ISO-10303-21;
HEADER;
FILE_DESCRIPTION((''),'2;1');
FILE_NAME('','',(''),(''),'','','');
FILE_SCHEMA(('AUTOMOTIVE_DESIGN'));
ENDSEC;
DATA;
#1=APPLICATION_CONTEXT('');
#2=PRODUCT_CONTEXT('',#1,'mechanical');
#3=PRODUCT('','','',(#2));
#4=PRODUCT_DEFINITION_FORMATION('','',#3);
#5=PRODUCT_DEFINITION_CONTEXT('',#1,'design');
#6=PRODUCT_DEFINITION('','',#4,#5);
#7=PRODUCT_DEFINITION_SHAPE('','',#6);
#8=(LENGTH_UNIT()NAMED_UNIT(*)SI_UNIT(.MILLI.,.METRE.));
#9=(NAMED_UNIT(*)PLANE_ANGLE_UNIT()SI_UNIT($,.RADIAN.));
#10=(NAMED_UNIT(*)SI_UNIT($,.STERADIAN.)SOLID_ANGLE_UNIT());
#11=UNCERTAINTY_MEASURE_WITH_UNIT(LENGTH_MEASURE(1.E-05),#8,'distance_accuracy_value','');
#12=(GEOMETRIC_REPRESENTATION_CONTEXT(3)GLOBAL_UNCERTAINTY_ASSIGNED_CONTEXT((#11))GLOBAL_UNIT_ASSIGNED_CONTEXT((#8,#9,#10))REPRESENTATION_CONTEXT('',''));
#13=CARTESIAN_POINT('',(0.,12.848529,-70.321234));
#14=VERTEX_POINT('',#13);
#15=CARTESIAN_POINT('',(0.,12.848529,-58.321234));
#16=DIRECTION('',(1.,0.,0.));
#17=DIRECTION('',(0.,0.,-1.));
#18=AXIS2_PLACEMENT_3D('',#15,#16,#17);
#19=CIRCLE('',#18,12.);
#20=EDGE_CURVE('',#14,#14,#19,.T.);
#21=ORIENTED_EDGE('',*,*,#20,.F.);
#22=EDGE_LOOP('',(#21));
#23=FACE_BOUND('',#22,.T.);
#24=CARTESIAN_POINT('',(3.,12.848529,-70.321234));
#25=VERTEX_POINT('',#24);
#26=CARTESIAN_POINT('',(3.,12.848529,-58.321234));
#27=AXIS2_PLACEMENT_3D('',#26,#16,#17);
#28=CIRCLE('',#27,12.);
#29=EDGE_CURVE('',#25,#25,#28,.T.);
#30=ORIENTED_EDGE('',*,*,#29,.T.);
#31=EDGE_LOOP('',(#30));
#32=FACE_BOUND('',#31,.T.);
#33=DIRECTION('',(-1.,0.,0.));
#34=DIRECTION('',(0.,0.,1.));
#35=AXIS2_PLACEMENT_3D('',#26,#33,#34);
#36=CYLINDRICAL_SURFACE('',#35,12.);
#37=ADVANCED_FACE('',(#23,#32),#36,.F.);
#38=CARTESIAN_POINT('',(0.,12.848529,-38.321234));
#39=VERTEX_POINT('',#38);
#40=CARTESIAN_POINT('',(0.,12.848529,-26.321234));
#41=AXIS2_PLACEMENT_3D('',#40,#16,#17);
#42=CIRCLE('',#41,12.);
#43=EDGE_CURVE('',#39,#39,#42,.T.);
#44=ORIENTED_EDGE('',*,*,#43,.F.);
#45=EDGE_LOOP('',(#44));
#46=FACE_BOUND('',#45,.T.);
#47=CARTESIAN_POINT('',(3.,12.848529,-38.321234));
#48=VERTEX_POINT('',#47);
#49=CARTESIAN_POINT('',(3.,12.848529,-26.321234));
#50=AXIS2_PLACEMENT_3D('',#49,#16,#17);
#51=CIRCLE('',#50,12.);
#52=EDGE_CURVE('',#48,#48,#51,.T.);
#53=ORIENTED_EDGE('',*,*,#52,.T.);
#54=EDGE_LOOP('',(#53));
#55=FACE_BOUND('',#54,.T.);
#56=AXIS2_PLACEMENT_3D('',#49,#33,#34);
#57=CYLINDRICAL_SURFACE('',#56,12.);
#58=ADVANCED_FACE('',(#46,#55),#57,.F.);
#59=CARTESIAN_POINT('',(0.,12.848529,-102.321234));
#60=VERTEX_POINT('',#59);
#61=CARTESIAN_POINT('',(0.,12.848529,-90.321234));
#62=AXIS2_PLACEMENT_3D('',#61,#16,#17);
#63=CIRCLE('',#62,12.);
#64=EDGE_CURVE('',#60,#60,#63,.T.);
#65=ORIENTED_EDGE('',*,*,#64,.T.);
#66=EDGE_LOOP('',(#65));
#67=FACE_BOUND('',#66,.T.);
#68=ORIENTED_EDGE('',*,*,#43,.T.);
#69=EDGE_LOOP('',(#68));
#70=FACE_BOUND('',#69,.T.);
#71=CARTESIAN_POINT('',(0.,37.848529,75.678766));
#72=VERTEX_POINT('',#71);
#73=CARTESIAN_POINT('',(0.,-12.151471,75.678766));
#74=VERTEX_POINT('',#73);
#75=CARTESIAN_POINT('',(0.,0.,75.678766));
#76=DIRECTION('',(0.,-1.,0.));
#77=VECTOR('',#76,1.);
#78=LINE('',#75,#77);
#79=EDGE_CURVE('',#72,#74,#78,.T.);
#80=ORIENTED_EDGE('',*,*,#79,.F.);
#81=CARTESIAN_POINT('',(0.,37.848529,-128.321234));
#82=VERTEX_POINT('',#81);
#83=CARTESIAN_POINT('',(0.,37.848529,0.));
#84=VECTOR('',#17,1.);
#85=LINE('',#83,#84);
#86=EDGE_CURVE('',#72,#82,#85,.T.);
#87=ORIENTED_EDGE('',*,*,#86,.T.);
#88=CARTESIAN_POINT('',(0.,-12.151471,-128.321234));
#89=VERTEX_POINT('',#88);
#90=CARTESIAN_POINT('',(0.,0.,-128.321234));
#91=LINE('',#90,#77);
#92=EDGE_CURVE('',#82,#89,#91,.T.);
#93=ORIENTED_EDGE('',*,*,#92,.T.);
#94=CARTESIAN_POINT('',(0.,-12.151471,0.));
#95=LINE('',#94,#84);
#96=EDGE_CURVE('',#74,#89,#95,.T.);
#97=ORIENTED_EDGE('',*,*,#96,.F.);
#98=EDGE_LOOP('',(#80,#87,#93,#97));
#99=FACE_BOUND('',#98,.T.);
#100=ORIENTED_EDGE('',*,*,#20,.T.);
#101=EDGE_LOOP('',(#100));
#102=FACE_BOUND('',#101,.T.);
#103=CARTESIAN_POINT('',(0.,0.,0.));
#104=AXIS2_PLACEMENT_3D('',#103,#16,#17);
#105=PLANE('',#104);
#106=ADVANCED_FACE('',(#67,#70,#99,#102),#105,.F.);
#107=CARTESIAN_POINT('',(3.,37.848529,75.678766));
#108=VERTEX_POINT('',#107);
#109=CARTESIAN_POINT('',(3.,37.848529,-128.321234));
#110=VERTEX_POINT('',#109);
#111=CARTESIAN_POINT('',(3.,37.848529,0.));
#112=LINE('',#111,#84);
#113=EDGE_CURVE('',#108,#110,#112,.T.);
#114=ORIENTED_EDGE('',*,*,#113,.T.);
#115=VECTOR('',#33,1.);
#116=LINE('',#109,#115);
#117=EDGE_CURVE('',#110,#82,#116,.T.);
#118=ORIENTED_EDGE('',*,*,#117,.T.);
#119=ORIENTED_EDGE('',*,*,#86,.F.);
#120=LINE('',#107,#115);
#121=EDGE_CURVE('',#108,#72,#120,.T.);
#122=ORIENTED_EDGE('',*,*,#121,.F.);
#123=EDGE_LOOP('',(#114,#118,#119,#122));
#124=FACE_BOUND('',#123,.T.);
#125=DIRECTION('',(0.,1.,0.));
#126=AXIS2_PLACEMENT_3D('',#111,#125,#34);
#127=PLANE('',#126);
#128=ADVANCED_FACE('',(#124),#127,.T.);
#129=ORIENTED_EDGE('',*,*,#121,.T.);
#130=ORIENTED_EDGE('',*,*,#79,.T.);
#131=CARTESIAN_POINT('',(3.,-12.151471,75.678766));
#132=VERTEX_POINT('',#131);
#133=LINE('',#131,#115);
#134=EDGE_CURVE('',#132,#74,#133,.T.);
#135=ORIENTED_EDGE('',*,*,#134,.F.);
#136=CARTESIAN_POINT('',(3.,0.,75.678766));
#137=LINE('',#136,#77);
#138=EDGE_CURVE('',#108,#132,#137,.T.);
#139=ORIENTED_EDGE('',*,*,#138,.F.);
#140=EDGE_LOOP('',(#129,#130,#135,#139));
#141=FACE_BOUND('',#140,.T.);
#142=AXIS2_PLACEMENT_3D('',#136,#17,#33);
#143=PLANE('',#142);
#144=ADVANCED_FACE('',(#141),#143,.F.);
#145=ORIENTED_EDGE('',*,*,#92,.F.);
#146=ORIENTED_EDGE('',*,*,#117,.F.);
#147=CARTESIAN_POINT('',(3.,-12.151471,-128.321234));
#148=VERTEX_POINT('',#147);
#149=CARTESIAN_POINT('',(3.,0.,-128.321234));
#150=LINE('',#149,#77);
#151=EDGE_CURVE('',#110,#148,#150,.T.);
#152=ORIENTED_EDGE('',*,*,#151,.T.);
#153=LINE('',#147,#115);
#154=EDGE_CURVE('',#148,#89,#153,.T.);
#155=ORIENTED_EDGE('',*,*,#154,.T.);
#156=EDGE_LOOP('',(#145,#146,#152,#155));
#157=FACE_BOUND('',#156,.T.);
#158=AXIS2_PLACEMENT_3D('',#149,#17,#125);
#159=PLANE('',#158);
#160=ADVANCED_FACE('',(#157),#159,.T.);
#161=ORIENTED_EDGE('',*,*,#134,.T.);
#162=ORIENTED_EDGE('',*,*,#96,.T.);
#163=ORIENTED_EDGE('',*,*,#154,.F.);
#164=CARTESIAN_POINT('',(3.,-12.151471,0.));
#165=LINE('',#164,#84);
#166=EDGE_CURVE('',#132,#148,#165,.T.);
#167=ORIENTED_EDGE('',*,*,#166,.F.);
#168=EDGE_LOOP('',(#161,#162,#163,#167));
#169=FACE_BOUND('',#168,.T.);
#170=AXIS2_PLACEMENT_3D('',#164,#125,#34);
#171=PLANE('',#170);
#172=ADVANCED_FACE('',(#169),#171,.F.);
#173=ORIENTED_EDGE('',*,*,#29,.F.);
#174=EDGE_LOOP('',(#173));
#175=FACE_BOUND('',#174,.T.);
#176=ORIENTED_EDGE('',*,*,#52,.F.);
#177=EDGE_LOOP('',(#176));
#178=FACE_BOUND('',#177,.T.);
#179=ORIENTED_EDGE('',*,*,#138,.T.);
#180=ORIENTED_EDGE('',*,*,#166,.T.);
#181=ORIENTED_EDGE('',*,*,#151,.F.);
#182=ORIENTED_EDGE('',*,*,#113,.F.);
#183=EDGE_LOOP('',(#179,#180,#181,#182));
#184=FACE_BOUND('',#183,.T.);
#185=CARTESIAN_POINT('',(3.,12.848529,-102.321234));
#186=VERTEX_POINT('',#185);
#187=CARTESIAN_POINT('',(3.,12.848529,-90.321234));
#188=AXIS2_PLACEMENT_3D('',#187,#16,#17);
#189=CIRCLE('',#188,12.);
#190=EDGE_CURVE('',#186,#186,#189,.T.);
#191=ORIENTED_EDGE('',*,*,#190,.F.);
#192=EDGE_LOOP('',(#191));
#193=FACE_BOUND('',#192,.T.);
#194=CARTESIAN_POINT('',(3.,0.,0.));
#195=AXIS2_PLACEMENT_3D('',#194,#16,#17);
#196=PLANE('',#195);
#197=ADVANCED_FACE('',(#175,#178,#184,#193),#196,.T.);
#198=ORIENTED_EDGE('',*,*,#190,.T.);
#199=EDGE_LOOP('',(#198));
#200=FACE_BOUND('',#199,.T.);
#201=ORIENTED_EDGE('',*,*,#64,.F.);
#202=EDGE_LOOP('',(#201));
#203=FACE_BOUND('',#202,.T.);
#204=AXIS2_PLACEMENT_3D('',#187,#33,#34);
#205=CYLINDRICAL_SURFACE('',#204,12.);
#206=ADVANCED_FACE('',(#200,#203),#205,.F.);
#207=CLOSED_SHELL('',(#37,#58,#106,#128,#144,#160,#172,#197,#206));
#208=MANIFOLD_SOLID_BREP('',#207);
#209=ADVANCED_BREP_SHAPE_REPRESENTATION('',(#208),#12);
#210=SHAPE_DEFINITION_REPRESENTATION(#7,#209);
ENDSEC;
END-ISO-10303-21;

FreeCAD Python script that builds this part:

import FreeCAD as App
import Part
import Sketcher
from FreeCAD import Vector
Q = App.Units.Quantity

doc = App.newDocument("Part")
body = doc.addObject("PartDesign::Body", "Body")

# Sketch on YZ plane
sketch1 = doc.addObject("Sketcher::SketchObject", "Sketch")
body.addObject(sketch1)
sketch1.AttachmentSupport = (doc.YZ_Plane, [""])
sketch1.MapMode = "FlatFace"
sketch1.addGeometry([
    Part.LineSegment(Vector(38, 76, 0), Vector(-12, 76, 0)),  # 0
    Part.LineSegment(Vector(-12, 76, 0), Vector(-12, -128, 0)),  # 1
    Part.LineSegment(Vector(-12, -128, 0), Vector(38, -128, 0)),  # 2
    Part.LineSegment(Vector(38, -128, 0), Vector(38, 76, 0)),  # 3
    Part.Circle(Vector(13, -26, 0), Vector(0, 0, 1), 12),  # 4
    Part.Circle(Vector(13, -58, 0), Vector(0, 0, 1), 12),  # 5
    Part.Circle(Vector(13, -90, 0), Vector(0, 0, 1), 12),  # 6
], False)
sketch1.addConstraint([
    Sketcher.Constraint("Coincident", 0, 2, 1, 1),
    Sketcher.Constraint("Coincident", 1, 2, 2, 1),
    Sketcher.Constraint("Coincident", 2, 2, 3, 1),
    Sketcher.Constraint("Coincident", 3, 2, 0, 1),
    Sketcher.Constraint("Horizontal", 0),
    Sketcher.Constraint("Vertical", 1),
    Sketcher.Constraint("Horizontal", 2),
    Sketcher.Constraint("Vertical", 3),
    Sketcher.Constraint("Equal", 4, 5),
    Sketcher.Constraint("Equal", 5, 6),
    Sketcher.Constraint("Vertical", 4, 3, 5, 3),
    Sketcher.Constraint("Vertical", 5, 3, 6, 3),
    Sketcher.Constraint("Diameter", 4, Q("24 mm")),
    Sketcher.Constraint("DistanceX", 0, 2, 0, 1, Q("50 mm")),
    Sketcher.Constraint("DistanceY", 1, 2, 1, 1, Q("204 mm")),
    Sketcher.Constraint("DistanceY", 5, 3, 4, 3, Q("32 mm")),
    Sketcher.Constraint("DistanceY", 6, 3, 5, 3, Q("32 mm")),
    Sketcher.Constraint("DistanceX", 0, 2, 4, 3, Q("25 mm")),
    Sketcher.Constraint("DistanceY", 4, 3, 0, 2, Q("102 mm")),
    Sketcher.Constraint("DistanceX", -1, 1, 4, 3, Q("12.848529 mm")),
    Sketcher.Constraint("DistanceY", 4, 3, -1, 1, Q("26.321234 mm")),
])
pad1 = doc.addObject("PartDesign::Pad", "Pad")
body.addObject(pad1)
pad1.Profile = sketch1
pad1.Length = 3

doc.recompute()
